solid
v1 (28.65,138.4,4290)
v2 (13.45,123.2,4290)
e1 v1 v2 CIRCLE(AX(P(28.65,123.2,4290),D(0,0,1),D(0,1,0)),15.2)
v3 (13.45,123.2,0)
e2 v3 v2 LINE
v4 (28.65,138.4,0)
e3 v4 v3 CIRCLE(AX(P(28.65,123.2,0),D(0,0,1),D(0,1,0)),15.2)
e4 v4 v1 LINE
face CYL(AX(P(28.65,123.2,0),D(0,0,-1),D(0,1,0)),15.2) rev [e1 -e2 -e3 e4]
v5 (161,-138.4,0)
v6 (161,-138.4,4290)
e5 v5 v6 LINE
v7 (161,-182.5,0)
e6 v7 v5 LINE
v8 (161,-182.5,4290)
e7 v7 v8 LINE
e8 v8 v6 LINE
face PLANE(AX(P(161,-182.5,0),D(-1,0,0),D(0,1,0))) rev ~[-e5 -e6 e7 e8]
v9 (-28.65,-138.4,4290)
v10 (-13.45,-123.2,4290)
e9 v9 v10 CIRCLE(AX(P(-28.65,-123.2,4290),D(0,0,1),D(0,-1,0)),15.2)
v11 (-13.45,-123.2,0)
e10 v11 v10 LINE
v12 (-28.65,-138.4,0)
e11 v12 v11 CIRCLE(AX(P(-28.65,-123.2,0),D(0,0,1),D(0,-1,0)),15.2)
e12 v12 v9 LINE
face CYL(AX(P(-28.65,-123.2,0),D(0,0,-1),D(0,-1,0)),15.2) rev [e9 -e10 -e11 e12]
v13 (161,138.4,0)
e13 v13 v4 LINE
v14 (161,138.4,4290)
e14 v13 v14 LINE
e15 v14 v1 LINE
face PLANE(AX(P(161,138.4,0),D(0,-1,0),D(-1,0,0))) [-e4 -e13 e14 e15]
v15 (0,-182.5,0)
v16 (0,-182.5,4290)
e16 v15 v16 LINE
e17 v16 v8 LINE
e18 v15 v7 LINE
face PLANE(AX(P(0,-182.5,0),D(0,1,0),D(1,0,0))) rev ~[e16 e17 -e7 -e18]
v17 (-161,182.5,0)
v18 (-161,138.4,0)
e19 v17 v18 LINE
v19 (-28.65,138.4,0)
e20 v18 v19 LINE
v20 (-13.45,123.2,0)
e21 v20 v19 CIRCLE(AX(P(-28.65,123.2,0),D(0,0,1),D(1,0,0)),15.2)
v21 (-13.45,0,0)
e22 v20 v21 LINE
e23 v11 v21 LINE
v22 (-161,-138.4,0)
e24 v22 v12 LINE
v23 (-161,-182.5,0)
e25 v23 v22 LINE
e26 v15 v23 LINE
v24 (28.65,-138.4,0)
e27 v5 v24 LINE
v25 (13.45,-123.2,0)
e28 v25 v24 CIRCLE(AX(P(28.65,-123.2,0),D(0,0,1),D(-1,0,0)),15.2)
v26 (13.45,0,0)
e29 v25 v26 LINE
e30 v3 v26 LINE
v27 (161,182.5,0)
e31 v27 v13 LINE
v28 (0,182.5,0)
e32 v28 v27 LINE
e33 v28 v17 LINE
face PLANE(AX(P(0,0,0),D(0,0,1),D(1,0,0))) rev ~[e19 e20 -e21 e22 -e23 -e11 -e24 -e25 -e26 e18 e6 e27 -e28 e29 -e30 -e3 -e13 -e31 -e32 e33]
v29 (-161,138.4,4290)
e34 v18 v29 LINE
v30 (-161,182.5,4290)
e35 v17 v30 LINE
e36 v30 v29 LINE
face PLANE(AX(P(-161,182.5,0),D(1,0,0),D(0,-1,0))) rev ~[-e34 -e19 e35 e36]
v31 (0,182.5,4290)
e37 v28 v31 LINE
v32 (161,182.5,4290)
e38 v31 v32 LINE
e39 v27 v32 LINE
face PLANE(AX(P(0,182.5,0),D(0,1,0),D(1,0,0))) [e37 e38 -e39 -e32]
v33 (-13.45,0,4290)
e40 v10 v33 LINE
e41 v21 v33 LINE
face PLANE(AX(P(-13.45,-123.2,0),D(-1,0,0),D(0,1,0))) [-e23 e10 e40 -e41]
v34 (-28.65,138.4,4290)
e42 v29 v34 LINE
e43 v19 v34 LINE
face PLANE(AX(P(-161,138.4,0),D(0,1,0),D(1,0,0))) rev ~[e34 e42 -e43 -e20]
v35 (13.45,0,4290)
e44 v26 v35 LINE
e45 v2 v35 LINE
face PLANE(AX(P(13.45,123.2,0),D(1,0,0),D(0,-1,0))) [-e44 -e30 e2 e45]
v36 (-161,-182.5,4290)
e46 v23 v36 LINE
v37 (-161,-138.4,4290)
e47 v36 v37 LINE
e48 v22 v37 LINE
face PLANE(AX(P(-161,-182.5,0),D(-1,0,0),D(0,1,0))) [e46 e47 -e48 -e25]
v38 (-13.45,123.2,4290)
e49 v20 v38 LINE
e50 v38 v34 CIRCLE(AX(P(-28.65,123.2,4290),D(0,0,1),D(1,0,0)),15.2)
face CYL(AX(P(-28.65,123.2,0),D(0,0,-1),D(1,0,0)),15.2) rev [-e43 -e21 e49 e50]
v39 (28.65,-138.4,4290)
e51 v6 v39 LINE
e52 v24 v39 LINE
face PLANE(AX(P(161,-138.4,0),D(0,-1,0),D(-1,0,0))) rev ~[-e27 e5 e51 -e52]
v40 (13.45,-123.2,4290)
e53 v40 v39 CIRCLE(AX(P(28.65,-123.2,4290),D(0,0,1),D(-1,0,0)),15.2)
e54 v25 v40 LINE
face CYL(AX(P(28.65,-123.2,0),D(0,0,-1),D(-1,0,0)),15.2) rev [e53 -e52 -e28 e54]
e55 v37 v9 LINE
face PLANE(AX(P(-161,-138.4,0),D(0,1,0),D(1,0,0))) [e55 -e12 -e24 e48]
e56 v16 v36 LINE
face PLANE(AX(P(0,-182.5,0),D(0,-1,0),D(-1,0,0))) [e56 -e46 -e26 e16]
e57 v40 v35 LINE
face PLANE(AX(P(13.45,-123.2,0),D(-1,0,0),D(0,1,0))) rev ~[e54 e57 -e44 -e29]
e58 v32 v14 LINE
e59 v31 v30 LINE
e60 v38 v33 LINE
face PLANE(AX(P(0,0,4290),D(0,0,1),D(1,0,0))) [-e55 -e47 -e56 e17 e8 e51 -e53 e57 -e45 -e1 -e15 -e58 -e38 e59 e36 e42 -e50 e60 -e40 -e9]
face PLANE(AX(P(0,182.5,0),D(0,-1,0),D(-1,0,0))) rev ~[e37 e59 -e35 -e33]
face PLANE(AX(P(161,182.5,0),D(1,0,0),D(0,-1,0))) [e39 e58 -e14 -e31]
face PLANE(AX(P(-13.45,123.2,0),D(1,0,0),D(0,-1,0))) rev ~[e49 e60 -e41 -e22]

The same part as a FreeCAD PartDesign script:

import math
import FreeCAD as App
import Part
import Sketcher
from FreeCAD import Vector

doc = App.newDocument("Part")
body = doc.addObject("PartDesign::Body", "Body")

sketch1 = doc.addObject("Sketcher::SketchObject", "Sketch")
body.addObject(sketch1)
sketch1.AttachmentSupport = (doc.XY_Plane, [""])
sketch1.MapMode = "FlatFace"
sketch1.addGeometry([
    Part.LineSegment(Vector(-161, -138.4, 0), Vector(-161, -182.5, 0)),
    Part.LineSegment(Vector(-161, -182.5, 0), Vector(161, -182.5, 0)),
    Part.LineSegment(Vector(161, -182.5, 0), Vector(161, -138.4, 0)),
    Part.LineSegment(Vector(161, -138.4, 0), Vector(28.65, -138.4, 0)),
    Part.ArcOfCircle(Part.Circle(Vector(28.65, -123.2, 0), Vector(0, 0, 1), 15.2), math.radians(180), math.radians(270)),
    Part.LineSegment(Vector(13.45, -123.2, 0), Vector(13.45, 123.2, 0)),
    Part.ArcOfCircle(Part.Circle(Vector(28.65, 123.2, 0), Vector(0, 0, 1), 15.2), math.radians(90), math.radians(180)),
    Part.LineSegment(Vector(28.65, 138.4, 0), Vector(161, 138.4, 0)),
    Part.LineSegment(Vector(161, 138.4, 0), Vector(161, 182.5, 0)),
    Part.LineSegment(Vector(161, 182.5, 0), Vector(-161, 182.5, 0)),
    Part.LineSegment(Vector(-161, 182.5, 0), Vector(-161, 138.4, 0)),
    Part.LineSegment(Vector(-161, 138.4, 0), Vector(-28.65, 138.4, 0)),
    Part.ArcOfCircle(Part.Circle(Vector(-28.65, 123.2, 0), Vector(0, 0, 1), 15.2), math.radians(0), math.radians(90)),
    Part.LineSegment(Vector(-13.45, 123.2, 0), Vector(-13.45, -123.2, 0)),
    Part.ArcOfCircle(Part.Circle(Vector(-28.65, -123.2, 0), Vector(0, 0, 1), 15.2), math.radians(-90), math.radians(0)),
    Part.LineSegment(Vector(-28.65, -138.4, 0), Vector(-161, -138.4, 0)),
], False)
sketch1.addConstraint([
    Sketcher.Constraint("Coincident", 0, 2, 1, 1),
    Sketcher.Constraint("Coincident", 1, 2, 2, 1),
    Sketcher.Constraint("Coincident", 2, 2, 3, 1),
    Sketcher.Constraint("Tangent", 3, 2, 4, 2),
    Sketcher.Constraint("Tangent", 4, 1, 5, 1),
    Sketcher.Constraint("Tangent", 5, 2, 6, 2),
    Sketcher.Constraint("Tangent", 6, 1, 7, 1),
    Sketcher.Constraint("Coincident", 7, 2, 8, 1),
    Sketcher.Constraint("Coincident", 8, 2, 9, 1),
    Sketcher.Constraint("Coincident", 9, 2, 10, 1),
    Sketcher.Constraint("Coincident", 10, 2, 11, 1),
    Sketcher.Constraint("Tangent", 11, 2, 12, 2),
    Sketcher.Constraint("Tangent", 12, 1, 13, 1),
    Sketcher.Constraint("Tangent", 13, 2, 14, 2),
    Sketcher.Constraint("Tangent", 14, 1, 15, 1),
    Sketcher.Constraint("Coincident", 15, 2, 0, 1),
    Sketcher.Constraint("Vertical", 0),
    Sketcher.Constraint("Horizontal", 1),
    Sketcher.Constraint("Vertical", 2),
    Sketcher.Constraint("Horizontal", 3),
    Sketcher.Constraint("Vertical", 5),
    Sketcher.Constraint("Horizontal", 7),
    Sketcher.Constraint("Vertical", 8),
    Sketcher.Constraint("Horizontal", 9),
    Sketcher.Constraint("Vertical", 10),
    Sketcher.Constraint("Horizontal", 11),
    Sketcher.Constraint("Vertical", 13),
    Sketcher.Constraint("Horizontal", 15),
    Sketcher.Constraint("Equal", 4, 6),
    Sketcher.Constraint("Equal", 6, 12),
    Sketcher.Constraint("Equal", 12, 14),
    Sketcher.Constraint("Symmetric", 4, 3, 12, 3, -1, 1),
    Sketcher.Constraint("Symmetric", 0, 2, 8, 2, -1, 1),
    Sketcher.Constraint("Symmetric", 7, 2, 10, 2, -2),
    Sketcher.Constraint("Symmetric", 2, 2, 15, 2, -2),
    Sketcher.Constraint("Radius", 4, 15.2),
    Sketcher.Constraint("DistanceY", 0, 2, 0, 1, 44.1),
    Sketcher.Constraint("DistanceX", 0, 2, -1, 1, 161.0),
    Sketcher.Constraint("DistanceY", 0, 2, -1, 1, 182.5),
    Sketcher.Constraint("DistanceX", -1, 1, 4, 1, 13.45),
])
pad1 = doc.addObject("PartDesign::Pad", "Pad")
body.addObject(pad1)
pad1.Profile = sketch1
pad1.Length = 4290

doc.recompute()
